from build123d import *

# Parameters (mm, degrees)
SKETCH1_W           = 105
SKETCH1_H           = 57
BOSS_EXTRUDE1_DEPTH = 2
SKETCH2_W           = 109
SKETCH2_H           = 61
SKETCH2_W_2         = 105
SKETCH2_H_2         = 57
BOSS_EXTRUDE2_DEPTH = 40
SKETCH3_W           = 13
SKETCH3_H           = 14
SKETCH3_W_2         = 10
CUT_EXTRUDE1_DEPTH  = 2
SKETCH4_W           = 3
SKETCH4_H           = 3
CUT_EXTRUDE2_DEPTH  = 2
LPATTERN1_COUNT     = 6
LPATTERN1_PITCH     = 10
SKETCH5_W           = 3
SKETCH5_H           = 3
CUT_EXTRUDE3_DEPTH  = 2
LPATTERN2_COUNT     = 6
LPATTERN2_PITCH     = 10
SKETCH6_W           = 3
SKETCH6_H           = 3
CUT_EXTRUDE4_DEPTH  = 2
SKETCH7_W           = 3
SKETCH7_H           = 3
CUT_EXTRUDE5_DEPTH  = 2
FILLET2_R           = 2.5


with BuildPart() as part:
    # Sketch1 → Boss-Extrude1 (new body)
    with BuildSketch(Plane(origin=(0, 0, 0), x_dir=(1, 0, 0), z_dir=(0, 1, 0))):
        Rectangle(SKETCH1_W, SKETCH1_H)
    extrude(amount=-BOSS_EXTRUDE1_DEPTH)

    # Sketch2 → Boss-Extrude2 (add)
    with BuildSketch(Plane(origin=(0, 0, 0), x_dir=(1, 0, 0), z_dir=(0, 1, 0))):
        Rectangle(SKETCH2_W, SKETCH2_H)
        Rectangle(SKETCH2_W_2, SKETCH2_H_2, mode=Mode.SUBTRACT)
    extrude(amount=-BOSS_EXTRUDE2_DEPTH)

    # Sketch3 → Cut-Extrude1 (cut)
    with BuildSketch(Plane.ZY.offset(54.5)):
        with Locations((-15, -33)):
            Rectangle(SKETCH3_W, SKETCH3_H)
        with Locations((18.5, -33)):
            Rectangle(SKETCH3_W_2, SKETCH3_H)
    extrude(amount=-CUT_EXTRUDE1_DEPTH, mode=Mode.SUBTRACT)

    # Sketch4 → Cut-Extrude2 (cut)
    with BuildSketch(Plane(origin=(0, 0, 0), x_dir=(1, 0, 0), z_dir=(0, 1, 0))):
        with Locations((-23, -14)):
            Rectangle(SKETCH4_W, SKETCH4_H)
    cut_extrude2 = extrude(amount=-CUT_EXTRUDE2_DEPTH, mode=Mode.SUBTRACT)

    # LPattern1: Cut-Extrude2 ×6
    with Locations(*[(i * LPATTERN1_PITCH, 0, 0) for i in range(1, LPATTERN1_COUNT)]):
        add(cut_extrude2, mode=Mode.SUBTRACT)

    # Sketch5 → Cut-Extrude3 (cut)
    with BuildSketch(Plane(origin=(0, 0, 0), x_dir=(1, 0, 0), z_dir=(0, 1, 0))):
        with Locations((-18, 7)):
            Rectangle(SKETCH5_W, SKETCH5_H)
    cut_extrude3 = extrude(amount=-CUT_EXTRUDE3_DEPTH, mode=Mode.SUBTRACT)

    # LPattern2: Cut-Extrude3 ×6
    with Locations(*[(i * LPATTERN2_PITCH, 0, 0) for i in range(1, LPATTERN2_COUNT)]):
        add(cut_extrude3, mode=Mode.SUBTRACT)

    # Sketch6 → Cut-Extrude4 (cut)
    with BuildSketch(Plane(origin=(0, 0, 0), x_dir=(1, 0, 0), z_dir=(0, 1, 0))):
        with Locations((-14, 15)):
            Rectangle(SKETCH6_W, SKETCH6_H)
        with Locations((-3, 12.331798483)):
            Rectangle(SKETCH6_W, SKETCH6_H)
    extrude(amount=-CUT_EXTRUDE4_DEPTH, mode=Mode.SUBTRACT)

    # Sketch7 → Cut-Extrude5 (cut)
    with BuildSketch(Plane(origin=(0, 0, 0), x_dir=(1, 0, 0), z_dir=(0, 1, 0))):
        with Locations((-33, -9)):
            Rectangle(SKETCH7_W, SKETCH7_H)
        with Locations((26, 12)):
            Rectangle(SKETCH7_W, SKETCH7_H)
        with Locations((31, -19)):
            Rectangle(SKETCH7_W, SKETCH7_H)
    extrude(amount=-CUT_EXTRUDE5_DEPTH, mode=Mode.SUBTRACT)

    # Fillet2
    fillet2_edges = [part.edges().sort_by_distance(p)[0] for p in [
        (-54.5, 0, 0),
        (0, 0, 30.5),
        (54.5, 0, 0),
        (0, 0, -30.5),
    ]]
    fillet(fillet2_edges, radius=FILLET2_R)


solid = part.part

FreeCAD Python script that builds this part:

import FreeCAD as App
import Part
import Sketcher
from FreeCAD import Vector


def edges_at(feature, points):
    """Names of the edges that pass closest to the given points."""
    edges = feature.Shape.Edges
    near = lambda p: min(range(len(edges)), key=lambda i: edges[i].distToShape(Part.Vertex(*p))[0])
    return sorted({f"Edge{near(p) + 1}" for p in points})

doc = App.newDocument("Part")
body = doc.addObject("PartDesign::Body", "Body")

sketch1 = doc.addObject("Sketcher::SketchObject", "Sketch")
body.addObject(sketch1)
sketch1.AttachmentSupport = (doc.XZ_Plane, [""])
sketch1.MapMode = "FlatFace"
sketch1.addGeometry([
    Part.LineSegment(Vector(-52, -28, 0), Vector(-52, 28, 0)),
    Part.LineSegment(Vector(-52, 28, 0), Vector(52, 28, 0)),
    Part.LineSegment(Vector(52, 28, 0), Vector(52, -28, 0)),
    Part.LineSegment(Vector(52, -28, 0), Vector(-52, -28, 0)),
], False)
sketch1.addConstraint([
    Sketcher.Constraint("Coincident", 0, 2, 1, 1),
    Sketcher.Constraint("Coincident", 1, 2, 2, 1),
    Sketcher.Constraint("Coincident", 2, 2, 3, 1),
    Sketcher.Constraint("Coincident", 3, 2, 0, 1),
    Sketcher.Constraint("Vertical", 0),
    Sketcher.Constraint("Horizontal", 1),
    Sketcher.Constraint("Vertical", 2),
    Sketcher.Constraint("Horizontal", 3),
    Sketcher.Constraint("Symmetric", 0, 2, 2, 2, -1, 1),
    Sketcher.Constraint("DistanceX", 1, 1, 1, 2, 105.0),
    Sketcher.Constraint("DistanceY", 0, 1, 0, 2, 57.0),
])
pad1 = doc.addObject("PartDesign::Pad", "Pad")
body.addObject(pad1)
pad1.Profile = sketch1
pad1.Length = 2

sketch2 = doc.addObject("Sketcher::SketchObject", "Sketch001")
body.addObject(sketch2)
sketch2.AttachmentSupport = (doc.XZ_Plane, [""])
sketch2.MapMode = "FlatFace"
sketch2.addGeometry([
    Part.LineSegment(Vector(-54, -30, 0), Vector(-54, 30, 0)),
    Part.LineSegment(Vector(-54, 30, 0), Vector(54, 30, 0)),
    Part.LineSegment(Vector(54, 30, 0), Vector(54, -30, 0)),
    Part.LineSegment(Vector(54, -30, 0), Vector(-54, -30, 0)),
    Part.LineSegment(Vector(52, 28, 0), Vector(-52, 28, 0)),
    Part.LineSegment(Vector(-52, 28, 0), Vector(-52, -28, 0)),
    Part.LineSegment(Vector(-52, -28, 0), Vector(52, -28, 0)),
    Part.LineSegment(Vector(52, -28, 0), Vector(52, 28, 0)),
], False)
sketch2.addConstraint([
    Sketcher.Constraint("Coincident", 0, 2, 1, 1),
    Sketcher.Constraint("Coincident", 1, 2, 2, 1),
    Sketcher.Constraint("Coincident", 2, 2, 3, 1),
    Sketcher.Constraint("Coincident", 3, 2, 0, 1),
    Sketcher.Constraint("Coincident", 4, 2, 5, 1),
    Sketcher.Constraint("Coincident", 5, 2, 6, 1),
    Sketcher.Constraint("Coincident", 6, 2, 7, 1),
    Sketcher.Constraint("Coincident", 7, 2, 4, 1),
    Sketcher.Constraint("Vertical", 0),
    Sketcher.Constraint("Horizontal", 1),
    Sketcher.Constraint("Vertical", 2),
    Sketcher.Constraint("Horizontal", 3),
    Sketcher.Constraint("Horizontal", 4),
    Sketcher.Constraint("Vertical", 5),
    Sketcher.Constraint("Horizontal", 6),
    Sketcher.Constraint("Vertical", 7),
    Sketcher.Constraint("Symmetric", 0, 2, 2, 2, -1, 1),
    Sketcher.Constraint("Symmetric", 4, 2, 6, 2, -1, 1),
    Sketcher.Constraint("DistanceX", 1, 1, 1, 2, 109.0),
    Sketcher.Constraint("DistanceX", 4, 2, 4, 1, 105.0),
    Sketcher.Constraint("DistanceY", 0, 1, 0, 2, 61.0),
    Sketcher.Constraint("DistanceY", 5, 2, 5, 1, 57.0),
])
pad2 = doc.addObject("PartDesign::Pad", "Pad001")
body.addObject(pad2)
pad2.Profile = sketch2
pad2.Length = 40

sketch3 = doc.addObject("Sketcher::SketchObject", "Sketch002")
body.addObject(sketch3)
sketch3.AttachmentSupport = (doc.YZ_Plane, [""])
sketch3.MapMode = "FlatFace"
sketch3.AttachmentOffset = App.Placement(Vector(0, 0, -54.5), App.Rotation())
sketch3.addGeometry([
    Part.LineSegment(Vector(-26, -22, 0), Vector(-40, -22, 0)),
    Part.LineSegment(Vector(-40, -22, 0), Vector(-40, -8, 0)),
    Part.LineSegment(Vector(-40, -8, 0), Vector(-26, -8, 0)),
    Part.LineSegment(Vector(-26, -8, 0), Vector(-26, -22, 0)),
    Part.LineSegment(Vector(-26, 14, 0), Vector(-40, 14, 0)),
    Part.LineSegment(Vector(-40, 14, 0), Vector(-40, 24, 0)),
    Part.LineSegment(Vector(-40, 24, 0), Vector(-26, 24, 0)),
    Part.LineSegment(Vector(-26, 24, 0), Vector(-26, 14, 0)),
], False)
sketch3.addConstraint([
    Sketcher.Constraint("Coincident", 0, 2, 1, 1),
    Sketcher.Constraint("Coincident", 1, 2, 2, 1),
    Sketcher.Constraint("Coincident", 2, 2, 3, 1),
    Sketcher.Constraint("Coincident", 3, 2, 0, 1),
    Sketcher.Constraint("Coincident", 4, 2, 5, 1),
    Sketcher.Constraint("Coincident", 5, 2, 6, 1),
    Sketcher.Constraint("Coincident", 6, 2, 7, 1),
    Sketcher.Constraint("Coincident", 7, 2, 4, 1),
    Sketcher.Constraint("Horizontal", 0),
    Sketcher.Constraint("Vertical", 1),
    Sketcher.Constraint("Horizontal", 2),
    Sketcher.Constraint("Vertical", 3),
    Sketcher.Constraint("Horizontal", 4),
    Sketcher.Constraint("Vertical", 5),
    Sketcher.Constraint("Horizontal", 6),
    Sketcher.Constraint("Vertical", 7),
    Sketcher.Constraint("Vertical", 1, 2, 4, 2),
    Sketcher.Constraint("Vertical", 3, 2, 6, 2),
    Sketcher.Constraint("DistanceX", 0, 2, 0, 1, 14.0),
    Sketcher.Constraint("DistanceY", 1, 1, 1, 2, 13.0),
    Sketcher.Constraint("DistanceY", 5, 1, 5, 2, 10.0),
    Sketcher.Constraint("DistanceX", 0, 2, -1, 1, 40.0),
    Sketcher.Constraint("DistanceY", 1, 2, 4, 2, 22.0),
    Sketcher.Constraint("DistanceY", 0, 2, -1, 1, 21.5),
])
pocket1 = doc.addObject("PartDesign::Pocket", "Pocket")
body.addObject(pocket1)
pocket1.Profile = sketch3
pocket1.Length = 2
pocket1.Reversed = True

sketch4 = doc.addObject("Sketcher::SketchObject", "Sketch003")
body.addObject(sketch4)
sketch4.AttachmentSupport = (doc.XZ_Plane, [""])
sketch4.MapMode = "FlatFace"
sketch4.addGeometry([
    Part.LineSegment(Vector(-24.5, 12.5, 0), Vector(-24.5, 15.5, 0)),
    Part.LineSegment(Vector(-24.5, 15.5, 0), Vector(-21.5, 15.5, 0)),
    Part.LineSegment(Vector(-21.5, 15.5, 0), Vector(-21.5, 12.5, 0)),
    Part.LineSegment(Vector(-21.5, 12.5, 0), Vector(-24.5, 12.5, 0)),
], False)
sketch4.addConstraint([
    Sketcher.Constraint("Coincident", 0, 2, 1, 1),
    Sketcher.Constraint("Coincident", 1, 2, 2, 1),
    Sketcher.Constraint("Coincident", 2, 2, 3, 1),
    Sketcher.Constraint("Coincident", 3, 2, 0, 1),
    Sketcher.Constraint("Vertical", 0),
    Sketcher.Constraint("Horizontal", 1),
    Sketcher.Constraint("Vertical", 2),
    Sketcher.Constraint("Horizontal", 3),
    Sketcher.Constraint("Equal", 3, 0),
    Sketcher.Constraint("DistanceX", 1, 1, 1, 2, 3.0),
    Sketcher.Constraint("DistanceX", 0, 2, -1, 1, 24.5),
    Sketcher.Constraint("DistanceY", -1, 1, 0, 2, 15.5),
])
pocket2 = doc.addObject("PartDesign::Pocket", "Pocket001")
body.addObject(pocket2)
pocket2.Profile = sketch4
pocket2.Length = 2
pocket2.Reversed = True
doc.recompute()

linearpattern = doc.addObject("PartDesign::LinearPattern", "LinearPattern")
body.addObject(linearpattern)
linearpattern.Originals = [pocket2]
linearpattern.Direction = (doc.X_Axis, [""])
linearpattern.Mode = "offset"
linearpattern.Offset = 10
linearpattern.Occurrences = 6
body.Tip = linearpattern

sketch5 = doc.addObject("Sketcher::SketchObject", "Sketch004")
body.addObject(sketch5)
sketch5.AttachmentSupport = (doc.XZ_Plane, [""])
sketch5.MapMode = "FlatFace"
sketch5.addGeometry([
    Part.LineSegment(Vector(-19.5, -8.5, 0), Vector(-19.5, -5.5, 0)),
    Part.LineSegment(Vector(-19.5, -5.5, 0), Vector(-16.5, -5.5, 0)),
    Part.LineSegment(Vector(-16.5, -5.5, 0), Vector(-16.5, -8.5, 0)),
    Part.LineSegment(Vector(-16.5, -8.5, 0), Vector(-19.5, -8.5, 0)),
], False)
sketch5.addConstraint([
    Sketcher.Constraint("Coincident", 0, 2, 1, 1),
    Sketcher.Constraint("Coincident", 1, 2, 2, 1),
    Sketcher.Constraint("Coincident", 2, 2, 3, 1),
    Sketcher.Constraint("Coincident", 3, 2, 0, 1),
    Sketcher.Constraint("Vertical", 0),
    Sketcher.Constraint("Horizontal", 1),
    Sketcher.Constraint("Vertical", 2),
    Sketcher.Constraint("Horizontal", 3),
    Sketcher.Constraint("Equal", 3, 0),
    Sketcher.Constraint("DistanceX", 1, 1, 1, 2, 3.0),
    Sketcher.Constraint("DistanceX", 0, 2, -1, 1, 19.5),
    Sketcher.Constraint("DistanceY", 0, 2, -1, 1, 5.5),
])
pocket3 = doc.addObject("PartDesign::Pocket", "Pocket002")
body.addObject(pocket3)
pocket3.Profile = sketch5
pocket3.Length = 2
pocket3.Reversed = True
doc.recompute()

linearpattern2 = doc.addObject("PartDesign::LinearPattern", "LinearPattern001")
body.addObject(linearpattern2)
linearpattern2.Originals = [pocket3]
linearpattern2.Direction = (doc.X_Axis, [""])
linearpattern2.Mode = "offset"
linearpattern2.Offset = 10
linearpattern2.Occurrences = 6
body.Tip = linearpattern2

sketch6 = doc.addObject("Sketcher::SketchObject", "Sketch005")
body.addObject(sketch6)
sketch6.AttachmentSupport = (doc.XZ_Plane, [""])
sketch6.MapMode = "FlatFace"
sketch6.addGeometry([
    Part.LineSegment(Vector(-15.5, -16.5, 0), Vector(-15.5, -13.5, 0)),
    Part.LineSegment(Vector(-15.5, -13.5, 0), Vector(-12.5, -13.5, 0)),
    Part.LineSegment(Vector(-12.5, -13.5, 0), Vector(-12.5, -16.5, 0)),
    Part.LineSegment(Vector(-12.5, -16.5, 0), Vector(-15.5, -16.5, 0)),
    Part.LineSegment(Vector(-4.5, -13.8, 0), Vector(-4.5, -10.8, 0)),
    Part.LineSegment(Vector(-4.5, -10.8, 0), Vector(-1.5, -10.8, 0)),
    Part.LineSegment(Vector(-1.5, -10.8, 0), Vector(-1.5, -13.8, 0)),
    Part.LineSegment(Vector(-1.5, -13.8, 0), Vector(-4.5, -13.8, 0)),
], False)
sketch6.addConstraint([
    Sketcher.Constraint("Coincident", 0, 2, 1, 1),
    Sketcher.Constraint("Coincident", 1, 2, 2, 1),
    Sketcher.Constraint("Coincident", 2, 2, 3, 1),
    Sketcher.Constraint("Coincident", 3, 2, 0, 1),
    Sketcher.Constraint("Coincident", 4, 2, 5, 1),
    Sketcher.Constraint("Coincident", 5, 2, 6, 1),
    Sketcher.Constraint("Coincident", 6, 2, 7, 1),
    Sketcher.Constraint("Coincident", 7, 2, 4, 1),
    Sketcher.Constraint("Vertical", 0),
    Sketcher.Constraint("Horizontal", 1),
    Sketcher.Constraint("Vertical", 2),
    Sketcher.Constraint("Horizontal", 3),
    Sketcher.Constraint("Vertical", 4),
    Sketcher.Constraint("Horizontal", 5),
    Sketcher.Constraint("Vertical", 6),
    Sketcher.Constraint("Horizontal", 7),
    Sketcher.Constraint("Equal", 3, 5),
    Sketcher.Constraint("Equal", 7, 0),
    Sketcher.Constraint("Equal", 2, 4),
    Sketcher.Constraint("DistanceX", 1, 1, 1, 2, 3.0),
    Sketcher.Constraint("DistanceX", 1, 2, 4, 2, 8.0),
    Sketcher.Constraint("DistanceX", 0, 2, -1, 1, 15.5),
    Sketcher.Constraint("DistanceY", 0, 2, -1, 1, 13.5),
    Sketcher.Constraint("DistanceY", 4, 2, -1, 1, 10.831798),
])
pocket4 = doc.addObject("PartDesign::Pocket", "Pocket003")
body.addObject(pocket4)
pocket4.Profile = sketch6
pocket4.Length = 2
pocket4.Reversed = True

sketch7 = doc.addObject("Sketcher::SketchObject", "Sketch006")
body.addObject(sketch7)
sketch7.AttachmentSupport = (doc.XZ_Plane, [""])
sketch7.MapMode = "FlatFace"
sketch7.addGeometry([
    Part.LineSegment(Vector(-34.5, 7.5, 0), Vector(-34.5, 10.5, 0)),
    Part.LineSegment(Vector(-34.5, 10.5, 0), Vector(-31.5, 10.5, 0)),
    Part.LineSegment(Vector(-31.5, 10.5, 0), Vector(-31.5, 7.5, 0)),
    Part.LineSegment(Vector(-31.5, 7.5, 0), Vector(-34.5, 7.5, 0)),
    Part.LineSegment(Vector(24.5, -13.5, 0), Vector(24.5, -10.5, 0)),
    Part.LineSegment(Vector(24.5, -10.5, 0), Vector(27.5, -10.5, 0)),
    Part.LineSegment(Vector(27.5, -10.5, 0), Vector(27.5, -13.5, 0)),
    Part.LineSegment(Vector(27.5, -13.5, 0), Vector(24.5, -13.5, 0)),
    Part.LineSegment(Vector(29.5, 17.5, 0), Vector(29.5, 20.5, 0)),
    Part.LineSegment(Vector(29.5, 20.5, 0), Vector(32.5, 20.5, 0)),
    Part.LineSegment(Vector(32.5, 20.5, 0), Vector(32.5, 17.5, 0)),
    Part.LineSegment(Vector(32.5, 17.5, 0), Vector(29.5, 17.5, 0)),
], False)
sketch7.addConstraint([
    Sketcher.Constraint("Coincident", 0, 2, 1, 1),
    Sketcher.Constraint("Coincident", 1, 2, 2, 1),
    Sketcher.Constraint("Coincident", 2, 2, 3, 1),
    Sketcher.Constraint("Coincident", 3, 2, 0, 1),
    Sketcher.Constraint("Coincident", 4, 2, 5, 1),
    Sketcher.Constraint("Coincident", 5, 2, 6, 1),
    Sketcher.Constraint("Coincident", 6, 2, 7, 1),
    Sketcher.Constraint("Coincident", 7, 2, 4, 1),
    Sketcher.Constraint("Coincident", 8, 2, 9, 1),
    Sketcher.Constraint("Coincident", 9, 2, 10, 1),
    Sketcher.Constraint("Coincident", 10, 2, 11, 1),
    Sketcher.Constraint("Coincident", 11, 2, 8, 1),
    Sketcher.Constraint("Vertical", 0),
    Sketcher.Constraint("Horizontal", 1),
    Sketcher.Constraint("Vertical", 2),
    Sketcher.Constraint("Horizontal", 3),
    Sketcher.Constraint("Vertical", 4),
    Sketcher.Constraint("Horizontal", 5),
    Sketcher.Constraint("Vertical", 6),
    Sketcher.Constraint("Horizontal", 7),
    Sketcher.Constraint("Vertical", 8),
    Sketcher.Constraint("Horizontal", 9),
    Sketcher.Constraint("Vertical", 10),
    Sketcher.Constraint("Horizontal", 11),
    Sketcher.Constraint("Equal", 3, 5),
    Sketcher.Constraint("Equal", 7, 9),
    Sketcher.Constraint("Equal", 11, 0),
    Sketcher.Constraint("Equal", 2, 4),
    Sketcher.Constraint("Equal", 6, 8),
    Sketcher.Constraint("DistanceX", 1, 1, 1, 2, 3.0),
    Sketcher.Constraint("DistanceX", 2, 2, 4, 2, 56.0),
    Sketcher.Constraint("DistanceY", 4, 2, 2, 2, 18.0),
    Sketcher.Constraint("DistanceX", 5, 2, 8, 2, 2.0),
    Sketcher.Constraint("DistanceY", 5, 2, 8, 2, 31.0),
    Sketcher.Constraint("DistanceX", 0, 2, -1, 1, 34.5),
    Sketcher.Constraint("DistanceY", -1, 1, 0, 2, 10.5),
])
pocket5 = doc.addObject("PartDesign::Pocket", "Pocket004")
body.addObject(pocket5)
pocket5.Profile = sketch7
pocket5.Length = 2
pocket5.Reversed = True
doc.recompute()

fillet = doc.addObject("PartDesign::Fillet", "Fillet")
body.addObject(fillet)
fillet.Base = (pocket5, edges_at(pocket5, [
    (-54.5, 0, 0),
    (0, 0, 30.5),
    (54.5, 0, 0),
    (0, 0, -30.5),
]))
fillet.Radius = 2.5

doc.recompute()
